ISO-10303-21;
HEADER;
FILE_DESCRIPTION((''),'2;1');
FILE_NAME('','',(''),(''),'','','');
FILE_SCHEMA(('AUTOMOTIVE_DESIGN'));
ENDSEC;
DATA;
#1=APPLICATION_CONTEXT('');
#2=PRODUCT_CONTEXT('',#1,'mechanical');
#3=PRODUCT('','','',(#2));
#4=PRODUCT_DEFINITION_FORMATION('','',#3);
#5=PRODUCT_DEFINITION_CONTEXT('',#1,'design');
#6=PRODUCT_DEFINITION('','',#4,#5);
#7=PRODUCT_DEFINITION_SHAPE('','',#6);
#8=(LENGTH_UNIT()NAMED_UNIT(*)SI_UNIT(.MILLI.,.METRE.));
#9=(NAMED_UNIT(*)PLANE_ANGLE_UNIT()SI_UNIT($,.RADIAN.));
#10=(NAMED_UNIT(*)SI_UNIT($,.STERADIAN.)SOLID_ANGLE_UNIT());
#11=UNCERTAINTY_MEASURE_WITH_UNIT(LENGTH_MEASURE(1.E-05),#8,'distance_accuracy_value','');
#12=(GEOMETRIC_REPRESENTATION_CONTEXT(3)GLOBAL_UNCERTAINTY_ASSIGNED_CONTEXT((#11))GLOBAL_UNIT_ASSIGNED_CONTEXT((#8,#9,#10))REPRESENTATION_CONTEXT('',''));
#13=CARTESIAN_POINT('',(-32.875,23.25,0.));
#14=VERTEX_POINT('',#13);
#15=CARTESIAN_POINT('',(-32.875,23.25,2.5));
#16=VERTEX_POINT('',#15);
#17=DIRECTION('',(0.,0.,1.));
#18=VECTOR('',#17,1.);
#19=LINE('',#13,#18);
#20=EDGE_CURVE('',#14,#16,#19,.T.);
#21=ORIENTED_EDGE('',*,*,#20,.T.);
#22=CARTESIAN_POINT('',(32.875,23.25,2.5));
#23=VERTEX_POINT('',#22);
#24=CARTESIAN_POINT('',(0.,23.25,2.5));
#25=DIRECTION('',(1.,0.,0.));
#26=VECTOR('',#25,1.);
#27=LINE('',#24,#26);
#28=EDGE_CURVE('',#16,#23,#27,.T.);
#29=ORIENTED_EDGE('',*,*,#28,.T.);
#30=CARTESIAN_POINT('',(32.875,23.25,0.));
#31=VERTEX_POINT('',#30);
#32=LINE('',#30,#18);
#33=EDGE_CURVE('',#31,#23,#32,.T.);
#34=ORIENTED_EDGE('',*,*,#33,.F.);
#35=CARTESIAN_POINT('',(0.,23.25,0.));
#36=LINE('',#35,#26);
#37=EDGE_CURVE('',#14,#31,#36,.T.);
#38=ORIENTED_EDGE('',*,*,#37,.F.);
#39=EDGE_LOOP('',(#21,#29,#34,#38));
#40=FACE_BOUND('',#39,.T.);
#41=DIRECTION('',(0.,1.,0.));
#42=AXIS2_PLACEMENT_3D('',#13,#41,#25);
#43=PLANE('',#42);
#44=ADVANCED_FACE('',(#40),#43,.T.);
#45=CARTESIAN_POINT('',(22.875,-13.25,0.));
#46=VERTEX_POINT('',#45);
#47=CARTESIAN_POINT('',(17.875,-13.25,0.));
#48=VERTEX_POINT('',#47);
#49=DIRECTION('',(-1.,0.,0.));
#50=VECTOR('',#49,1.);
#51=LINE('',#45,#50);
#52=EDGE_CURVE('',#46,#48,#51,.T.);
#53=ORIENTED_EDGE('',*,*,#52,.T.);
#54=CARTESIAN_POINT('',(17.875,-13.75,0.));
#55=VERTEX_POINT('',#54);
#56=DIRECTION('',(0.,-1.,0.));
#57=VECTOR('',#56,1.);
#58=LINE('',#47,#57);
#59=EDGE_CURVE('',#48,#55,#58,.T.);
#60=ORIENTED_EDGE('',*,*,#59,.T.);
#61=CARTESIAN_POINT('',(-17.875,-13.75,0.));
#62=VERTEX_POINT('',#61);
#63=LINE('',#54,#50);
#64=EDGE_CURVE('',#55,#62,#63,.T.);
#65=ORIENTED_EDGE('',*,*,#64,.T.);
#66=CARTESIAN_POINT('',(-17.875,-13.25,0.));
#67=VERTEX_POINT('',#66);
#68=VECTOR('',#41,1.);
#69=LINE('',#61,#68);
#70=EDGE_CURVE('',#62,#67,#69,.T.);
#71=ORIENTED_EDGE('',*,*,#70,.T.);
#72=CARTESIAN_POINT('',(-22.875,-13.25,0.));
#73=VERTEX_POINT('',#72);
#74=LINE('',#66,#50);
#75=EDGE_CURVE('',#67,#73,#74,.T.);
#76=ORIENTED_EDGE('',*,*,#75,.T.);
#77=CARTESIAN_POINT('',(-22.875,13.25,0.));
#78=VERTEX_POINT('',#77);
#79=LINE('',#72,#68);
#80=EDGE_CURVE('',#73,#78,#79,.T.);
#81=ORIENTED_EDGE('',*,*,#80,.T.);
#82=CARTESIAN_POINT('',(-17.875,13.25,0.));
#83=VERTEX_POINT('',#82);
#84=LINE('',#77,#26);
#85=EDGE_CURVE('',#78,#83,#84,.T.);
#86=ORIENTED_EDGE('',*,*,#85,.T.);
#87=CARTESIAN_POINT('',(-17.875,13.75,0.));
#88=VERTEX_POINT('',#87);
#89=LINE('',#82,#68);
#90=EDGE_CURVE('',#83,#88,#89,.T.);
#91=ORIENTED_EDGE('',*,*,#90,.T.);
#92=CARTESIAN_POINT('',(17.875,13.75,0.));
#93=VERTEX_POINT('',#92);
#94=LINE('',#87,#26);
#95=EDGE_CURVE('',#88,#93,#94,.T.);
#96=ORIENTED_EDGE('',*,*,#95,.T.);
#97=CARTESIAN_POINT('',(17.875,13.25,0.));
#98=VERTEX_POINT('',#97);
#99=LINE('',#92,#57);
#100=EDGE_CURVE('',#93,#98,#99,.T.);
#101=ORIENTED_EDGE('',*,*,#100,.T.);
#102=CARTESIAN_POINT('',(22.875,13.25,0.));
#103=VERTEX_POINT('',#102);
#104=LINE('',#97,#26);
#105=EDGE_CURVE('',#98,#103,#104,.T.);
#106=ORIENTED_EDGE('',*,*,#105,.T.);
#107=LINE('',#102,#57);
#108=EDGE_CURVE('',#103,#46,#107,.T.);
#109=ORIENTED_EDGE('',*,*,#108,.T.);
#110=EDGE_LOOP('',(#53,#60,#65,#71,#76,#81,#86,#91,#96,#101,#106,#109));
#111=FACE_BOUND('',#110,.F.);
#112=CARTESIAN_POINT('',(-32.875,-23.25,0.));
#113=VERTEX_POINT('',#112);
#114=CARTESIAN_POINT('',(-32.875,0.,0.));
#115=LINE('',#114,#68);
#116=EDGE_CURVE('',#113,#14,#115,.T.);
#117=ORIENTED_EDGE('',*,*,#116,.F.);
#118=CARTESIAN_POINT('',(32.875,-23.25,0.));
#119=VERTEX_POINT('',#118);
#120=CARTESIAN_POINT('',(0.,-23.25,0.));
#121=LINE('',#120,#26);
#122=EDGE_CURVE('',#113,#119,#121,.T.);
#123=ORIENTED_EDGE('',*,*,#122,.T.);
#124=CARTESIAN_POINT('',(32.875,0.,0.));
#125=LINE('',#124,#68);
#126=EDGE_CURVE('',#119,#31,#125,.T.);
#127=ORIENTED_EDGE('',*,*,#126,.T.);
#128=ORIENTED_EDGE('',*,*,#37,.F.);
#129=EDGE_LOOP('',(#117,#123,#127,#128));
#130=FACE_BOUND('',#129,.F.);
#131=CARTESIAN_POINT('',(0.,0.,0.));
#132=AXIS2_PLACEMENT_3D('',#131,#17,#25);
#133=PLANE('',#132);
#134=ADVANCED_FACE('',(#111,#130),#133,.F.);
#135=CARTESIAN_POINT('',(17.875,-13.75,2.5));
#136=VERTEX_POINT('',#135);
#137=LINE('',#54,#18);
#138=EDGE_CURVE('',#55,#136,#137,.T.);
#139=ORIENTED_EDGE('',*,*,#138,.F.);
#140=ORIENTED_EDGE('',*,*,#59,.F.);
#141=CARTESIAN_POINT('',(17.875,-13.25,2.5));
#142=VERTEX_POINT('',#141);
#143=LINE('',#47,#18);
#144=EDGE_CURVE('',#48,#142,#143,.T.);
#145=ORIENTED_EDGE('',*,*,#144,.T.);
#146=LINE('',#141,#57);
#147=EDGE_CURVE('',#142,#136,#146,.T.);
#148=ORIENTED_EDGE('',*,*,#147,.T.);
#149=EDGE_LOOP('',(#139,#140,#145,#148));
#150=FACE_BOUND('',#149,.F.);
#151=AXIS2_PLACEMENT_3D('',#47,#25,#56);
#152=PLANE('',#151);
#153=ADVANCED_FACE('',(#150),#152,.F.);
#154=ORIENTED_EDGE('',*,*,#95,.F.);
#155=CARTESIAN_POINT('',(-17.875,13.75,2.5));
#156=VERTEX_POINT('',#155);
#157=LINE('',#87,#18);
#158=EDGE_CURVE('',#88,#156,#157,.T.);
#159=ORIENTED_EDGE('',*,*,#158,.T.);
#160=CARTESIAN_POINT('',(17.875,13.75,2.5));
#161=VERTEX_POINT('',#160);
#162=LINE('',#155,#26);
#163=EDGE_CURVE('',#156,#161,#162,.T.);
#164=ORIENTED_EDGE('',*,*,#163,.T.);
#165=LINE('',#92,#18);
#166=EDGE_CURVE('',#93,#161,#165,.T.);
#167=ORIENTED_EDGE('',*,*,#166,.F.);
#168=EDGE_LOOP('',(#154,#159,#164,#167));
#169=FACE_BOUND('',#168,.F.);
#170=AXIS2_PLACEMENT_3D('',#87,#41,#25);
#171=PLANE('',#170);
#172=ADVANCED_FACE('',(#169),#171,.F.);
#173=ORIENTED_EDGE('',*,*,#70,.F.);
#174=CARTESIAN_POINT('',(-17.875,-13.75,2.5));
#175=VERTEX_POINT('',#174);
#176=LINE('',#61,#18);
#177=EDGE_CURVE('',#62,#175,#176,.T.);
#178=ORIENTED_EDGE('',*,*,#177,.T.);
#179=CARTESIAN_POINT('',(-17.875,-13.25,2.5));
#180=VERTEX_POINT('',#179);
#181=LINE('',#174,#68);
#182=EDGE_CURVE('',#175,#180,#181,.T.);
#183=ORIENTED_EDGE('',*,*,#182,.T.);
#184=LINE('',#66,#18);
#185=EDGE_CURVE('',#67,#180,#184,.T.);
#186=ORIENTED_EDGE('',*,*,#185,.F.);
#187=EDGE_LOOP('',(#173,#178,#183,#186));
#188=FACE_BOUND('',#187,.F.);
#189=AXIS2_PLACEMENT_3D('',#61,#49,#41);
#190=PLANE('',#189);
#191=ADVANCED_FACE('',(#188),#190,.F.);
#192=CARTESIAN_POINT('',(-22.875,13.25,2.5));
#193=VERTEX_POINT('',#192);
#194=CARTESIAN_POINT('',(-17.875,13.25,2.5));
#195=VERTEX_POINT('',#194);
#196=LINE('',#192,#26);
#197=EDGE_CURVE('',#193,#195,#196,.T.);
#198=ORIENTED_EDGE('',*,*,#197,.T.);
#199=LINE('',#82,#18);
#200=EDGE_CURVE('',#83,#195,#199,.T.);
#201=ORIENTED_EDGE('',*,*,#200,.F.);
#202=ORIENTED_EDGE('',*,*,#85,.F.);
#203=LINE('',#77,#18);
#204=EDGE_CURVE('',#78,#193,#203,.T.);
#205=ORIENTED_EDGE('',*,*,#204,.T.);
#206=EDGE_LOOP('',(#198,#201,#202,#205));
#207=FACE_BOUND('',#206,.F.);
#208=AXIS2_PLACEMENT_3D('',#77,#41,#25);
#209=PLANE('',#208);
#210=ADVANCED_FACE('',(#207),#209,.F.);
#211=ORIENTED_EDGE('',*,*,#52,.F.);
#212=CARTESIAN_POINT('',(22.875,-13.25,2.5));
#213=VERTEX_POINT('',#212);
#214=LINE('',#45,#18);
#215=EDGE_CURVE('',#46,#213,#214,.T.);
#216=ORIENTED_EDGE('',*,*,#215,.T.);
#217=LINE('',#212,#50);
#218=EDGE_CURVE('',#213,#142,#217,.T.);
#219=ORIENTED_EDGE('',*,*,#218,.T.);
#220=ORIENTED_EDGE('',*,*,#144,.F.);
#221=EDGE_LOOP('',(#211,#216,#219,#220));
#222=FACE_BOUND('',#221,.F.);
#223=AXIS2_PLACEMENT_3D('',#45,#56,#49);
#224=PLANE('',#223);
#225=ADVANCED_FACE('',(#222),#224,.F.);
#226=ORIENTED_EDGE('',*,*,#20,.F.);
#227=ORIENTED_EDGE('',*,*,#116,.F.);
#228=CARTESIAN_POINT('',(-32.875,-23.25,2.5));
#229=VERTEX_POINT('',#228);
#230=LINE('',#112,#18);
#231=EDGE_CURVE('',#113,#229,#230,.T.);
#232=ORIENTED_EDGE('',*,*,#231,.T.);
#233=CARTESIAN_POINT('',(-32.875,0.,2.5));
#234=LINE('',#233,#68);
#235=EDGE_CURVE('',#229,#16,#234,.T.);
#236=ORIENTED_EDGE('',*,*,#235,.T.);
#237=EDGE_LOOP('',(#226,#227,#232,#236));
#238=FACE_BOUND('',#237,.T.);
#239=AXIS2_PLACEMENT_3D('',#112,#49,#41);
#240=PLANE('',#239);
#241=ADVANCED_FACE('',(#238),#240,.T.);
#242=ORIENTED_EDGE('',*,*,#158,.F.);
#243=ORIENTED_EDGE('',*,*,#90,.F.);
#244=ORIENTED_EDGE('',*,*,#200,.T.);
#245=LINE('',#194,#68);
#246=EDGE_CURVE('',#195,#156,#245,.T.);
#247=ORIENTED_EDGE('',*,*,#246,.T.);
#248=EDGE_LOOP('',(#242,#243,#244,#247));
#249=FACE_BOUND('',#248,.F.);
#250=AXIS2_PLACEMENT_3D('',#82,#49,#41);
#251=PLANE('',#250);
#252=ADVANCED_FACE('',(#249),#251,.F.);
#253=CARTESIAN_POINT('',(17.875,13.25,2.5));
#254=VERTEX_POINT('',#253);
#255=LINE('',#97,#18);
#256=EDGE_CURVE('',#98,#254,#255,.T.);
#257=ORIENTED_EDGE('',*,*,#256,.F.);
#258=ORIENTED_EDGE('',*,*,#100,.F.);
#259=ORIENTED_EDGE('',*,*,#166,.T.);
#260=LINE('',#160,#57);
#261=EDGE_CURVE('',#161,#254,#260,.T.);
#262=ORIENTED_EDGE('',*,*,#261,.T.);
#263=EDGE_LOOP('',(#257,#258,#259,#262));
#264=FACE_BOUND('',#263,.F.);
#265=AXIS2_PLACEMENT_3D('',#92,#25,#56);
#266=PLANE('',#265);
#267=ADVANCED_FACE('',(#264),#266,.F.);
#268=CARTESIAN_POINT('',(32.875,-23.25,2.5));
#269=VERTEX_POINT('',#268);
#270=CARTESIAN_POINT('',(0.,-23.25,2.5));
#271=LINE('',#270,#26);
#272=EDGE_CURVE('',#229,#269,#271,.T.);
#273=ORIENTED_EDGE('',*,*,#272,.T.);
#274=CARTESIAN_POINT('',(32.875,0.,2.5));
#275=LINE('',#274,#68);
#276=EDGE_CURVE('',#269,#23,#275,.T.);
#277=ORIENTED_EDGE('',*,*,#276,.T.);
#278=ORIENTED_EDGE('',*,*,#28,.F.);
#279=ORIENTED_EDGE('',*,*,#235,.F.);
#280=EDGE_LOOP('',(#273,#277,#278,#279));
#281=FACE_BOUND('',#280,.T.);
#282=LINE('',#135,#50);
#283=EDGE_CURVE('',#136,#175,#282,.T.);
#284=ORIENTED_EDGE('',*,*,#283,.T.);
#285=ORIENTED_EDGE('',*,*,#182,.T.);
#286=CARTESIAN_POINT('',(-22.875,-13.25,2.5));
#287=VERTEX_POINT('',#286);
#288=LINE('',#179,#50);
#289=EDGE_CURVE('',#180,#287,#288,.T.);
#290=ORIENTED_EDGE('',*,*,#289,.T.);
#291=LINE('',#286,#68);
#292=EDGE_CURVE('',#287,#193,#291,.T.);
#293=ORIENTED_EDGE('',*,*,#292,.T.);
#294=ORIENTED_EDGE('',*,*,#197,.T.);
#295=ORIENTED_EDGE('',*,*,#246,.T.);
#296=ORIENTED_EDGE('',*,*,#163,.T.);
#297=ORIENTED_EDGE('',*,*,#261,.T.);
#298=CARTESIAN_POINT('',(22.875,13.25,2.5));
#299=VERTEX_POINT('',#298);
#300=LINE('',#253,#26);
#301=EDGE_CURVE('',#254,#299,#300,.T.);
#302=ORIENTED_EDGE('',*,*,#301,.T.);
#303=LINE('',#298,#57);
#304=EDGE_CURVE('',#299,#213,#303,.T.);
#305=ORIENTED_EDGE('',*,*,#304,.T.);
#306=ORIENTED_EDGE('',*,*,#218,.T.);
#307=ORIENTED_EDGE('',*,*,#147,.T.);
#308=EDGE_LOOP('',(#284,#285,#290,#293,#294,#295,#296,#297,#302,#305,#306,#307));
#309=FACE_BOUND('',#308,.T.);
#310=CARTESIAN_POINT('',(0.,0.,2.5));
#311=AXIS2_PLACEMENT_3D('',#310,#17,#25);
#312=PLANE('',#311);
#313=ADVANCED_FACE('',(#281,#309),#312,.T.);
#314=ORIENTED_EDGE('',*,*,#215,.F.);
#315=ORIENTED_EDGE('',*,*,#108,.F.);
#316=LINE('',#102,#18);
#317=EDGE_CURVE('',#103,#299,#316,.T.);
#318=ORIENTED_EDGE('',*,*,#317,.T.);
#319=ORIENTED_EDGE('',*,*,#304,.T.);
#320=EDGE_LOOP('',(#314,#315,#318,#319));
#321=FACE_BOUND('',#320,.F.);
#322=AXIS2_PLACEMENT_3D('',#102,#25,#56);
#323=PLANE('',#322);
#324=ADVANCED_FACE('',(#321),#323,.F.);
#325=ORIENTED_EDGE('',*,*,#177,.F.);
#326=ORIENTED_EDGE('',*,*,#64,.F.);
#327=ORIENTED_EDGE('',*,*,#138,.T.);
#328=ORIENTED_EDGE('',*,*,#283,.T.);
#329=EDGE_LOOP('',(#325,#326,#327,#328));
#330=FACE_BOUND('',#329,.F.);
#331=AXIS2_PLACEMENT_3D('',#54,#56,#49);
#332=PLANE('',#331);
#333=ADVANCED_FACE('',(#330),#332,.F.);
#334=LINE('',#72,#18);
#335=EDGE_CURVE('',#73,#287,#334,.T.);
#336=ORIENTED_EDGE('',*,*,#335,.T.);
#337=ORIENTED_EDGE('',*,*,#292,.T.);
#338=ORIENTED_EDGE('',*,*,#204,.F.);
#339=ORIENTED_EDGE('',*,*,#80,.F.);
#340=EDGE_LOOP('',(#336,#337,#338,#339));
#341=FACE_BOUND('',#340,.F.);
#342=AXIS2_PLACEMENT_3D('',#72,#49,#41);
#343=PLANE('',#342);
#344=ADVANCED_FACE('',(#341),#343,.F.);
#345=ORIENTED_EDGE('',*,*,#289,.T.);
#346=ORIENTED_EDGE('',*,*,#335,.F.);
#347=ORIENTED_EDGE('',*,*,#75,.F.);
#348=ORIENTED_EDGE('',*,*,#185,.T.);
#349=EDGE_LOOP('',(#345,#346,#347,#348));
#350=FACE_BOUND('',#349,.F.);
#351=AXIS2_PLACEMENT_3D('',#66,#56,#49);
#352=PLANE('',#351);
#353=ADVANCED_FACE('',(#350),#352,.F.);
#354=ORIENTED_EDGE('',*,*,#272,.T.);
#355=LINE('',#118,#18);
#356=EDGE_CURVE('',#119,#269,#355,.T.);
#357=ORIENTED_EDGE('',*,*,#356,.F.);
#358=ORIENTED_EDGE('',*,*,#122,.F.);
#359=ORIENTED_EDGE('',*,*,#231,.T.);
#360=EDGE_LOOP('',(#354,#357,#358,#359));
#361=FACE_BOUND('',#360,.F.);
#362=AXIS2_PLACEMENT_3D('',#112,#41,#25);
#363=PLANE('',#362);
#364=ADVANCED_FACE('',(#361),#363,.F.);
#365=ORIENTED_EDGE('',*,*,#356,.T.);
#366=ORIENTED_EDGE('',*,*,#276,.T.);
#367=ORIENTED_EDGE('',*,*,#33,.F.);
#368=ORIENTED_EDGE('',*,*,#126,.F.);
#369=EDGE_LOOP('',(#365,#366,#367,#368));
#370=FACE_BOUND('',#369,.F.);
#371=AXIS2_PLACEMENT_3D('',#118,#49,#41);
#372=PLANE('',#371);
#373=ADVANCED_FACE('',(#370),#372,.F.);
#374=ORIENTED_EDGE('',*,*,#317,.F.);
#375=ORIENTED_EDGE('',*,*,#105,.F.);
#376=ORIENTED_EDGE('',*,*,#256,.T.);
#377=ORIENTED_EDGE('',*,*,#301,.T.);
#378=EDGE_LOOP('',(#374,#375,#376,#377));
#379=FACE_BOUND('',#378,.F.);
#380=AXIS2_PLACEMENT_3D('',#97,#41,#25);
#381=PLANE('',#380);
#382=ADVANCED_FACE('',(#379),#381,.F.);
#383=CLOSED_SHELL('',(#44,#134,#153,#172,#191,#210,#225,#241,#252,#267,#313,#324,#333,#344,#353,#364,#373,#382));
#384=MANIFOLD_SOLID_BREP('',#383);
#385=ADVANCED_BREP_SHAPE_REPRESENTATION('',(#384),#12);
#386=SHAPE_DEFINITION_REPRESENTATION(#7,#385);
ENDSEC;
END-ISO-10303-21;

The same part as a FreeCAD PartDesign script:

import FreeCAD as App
import Part
import Sketcher
from FreeCAD import Vector

doc = App.newDocument("Part")
body = doc.addObject("PartDesign::Body", "Body")

# Sketch on XY plane
sketch1 = body.newObject("Sketcher::SketchObject", "Sketch")
sketch1.AttachmentSupport = (doc.getObject("XY_Plane"), [""])
sketch1.MapMode = "FlatFace"
sketch1.addGeometry(Part.LineSegment(Vector(-32.9, 23.2, 0), Vector(-32.9, -23.2, 0)), False)
sketch1.addGeometry(Part.LineSegment(Vector(-32.9, -23.2, 0), Vector(32.9, -23.2, 0)), False)
sketch1.addGeometry(Part.LineSegment(Vector(32.9, -23.2, 0), Vector(32.9, 23.2, 0)), False)
sketch1.addGeometry(Part.LineSegment(Vector(32.9, 23.2, 0), Vector(-32.9, 23.2, 0)), False)
sketch1.addGeometry(Part.LineSegment(Vector(-22.9, -13.2, 0), Vector(-22.9, 13.2, 0)), False)
sketch1.addGeometry(Part.LineSegment(Vector(-22.9, 13.2, 0), Vector(-17.9, 13.2, 0)), False)
sketch1.addGeometry(Part.LineSegment(Vector(-17.9, 13.2, 0), Vector(-17.9, 13.8, 0)), False)
sketch1.addGeometry(Part.LineSegment(Vector(-17.9, 13.8, 0), Vector(17.9, 13.8, 0)), False)
sketch1.addGeometry(Part.LineSegment(Vector(17.9, 13.8, 0), Vector(17.9, 13.2, 0)), False)
sketch1.addGeometry(Part.LineSegment(Vector(17.9, 13.2, 0), Vector(22.9, 13.2, 0)), False)
sketch1.addGeometry(Part.LineSegment(Vector(22.9, 13.2, 0), Vector(22.9, -13.2, 0)), False)
sketch1.addGeometry(Part.LineSegment(Vector(22.9, -13.2, 0), Vector(17.9, -13.2, 0)), False)
sketch1.addGeometry(Part.LineSegment(Vector(17.9, -13.2, 0), Vector(17.9, -13.8, 0)), False)
sketch1.addGeometry(Part.LineSegment(Vector(17.9, -13.8, 0), Vector(-17.9, -13.8, 0)), False)
sketch1.addGeometry(Part.LineSegment(Vector(-17.9, -13.8, 0), Vector(-17.9, -13.2, 0)), False)
sketch1.addGeometry(Part.LineSegment(Vector(-17.9, -13.2, 0), Vector(-22.9, -13.2, 0)), False)
sketch1.addConstraint(Sketcher.Constraint("Coincident", 0, 2, 1, 1))
sketch1.addConstraint(Sketcher.Constraint("Coincident", 1, 2, 2, 1))
sketch1.addConstraint(Sketcher.Constraint("Coincident", 2, 2, 3, 1))
sketch1.addConstraint(Sketcher.Constraint("Coincident", 3, 2, 0, 1))
sketch1.addConstraint(Sketcher.Constraint("Coincident", 4, 2, 5, 1))
sketch1.addConstraint(Sketcher.Constraint("Coincident", 5, 2, 6, 1))
sketch1.addConstraint(Sketcher.Constraint("Coincident", 6, 2, 7, 1))
sketch1.addConstraint(Sketcher.Constraint("Coincident", 7, 2, 8, 1))
sketch1.addConstraint(Sketcher.Constraint("Coincident", 8, 2, 9, 1))
sketch1.addConstraint(Sketcher.Constraint("Coincident", 9, 2, 10, 1))
sketch1.addConstraint(Sketcher.Constraint("Coincident", 10, 2, 11, 1))
sketch1.addConstraint(Sketcher.Constraint("Coincident", 11, 2, 12, 1))
sketch1.addConstraint(Sketcher.Constraint("Coincident", 12, 2, 13, 1))
sketch1.addConstraint(Sketcher.Constraint("Coincident", 13, 2, 14, 1))
sketch1.addConstraint(Sketcher.Constraint("Coincident", 14, 2, 15, 1))
sketch1.addConstraint(Sketcher.Constraint("Coincident", 15, 2, 4, 1))
sketch1.addConstraint(Sketcher.Constraint("Vertical", 0))
sketch1.addConstraint(Sketcher.Constraint("Horizontal", 1))
sketch1.addConstraint(Sketcher.Constraint("Vertical", 2))
sketch1.addConstraint(Sketcher.Constraint("Horizontal", 3))
sketch1.addConstraint(Sketcher.Constraint("Vertical", 4))
sketch1.addConstraint(Sketcher.Constraint("Horizontal", 5))
sketch1.addConstraint(Sketcher.Constraint("Vertical", 6))
sketch1.addConstraint(Sketcher.Constraint("Horizontal", 7))
sketch1.addConstraint(Sketcher.Constraint("Vertical", 8))
sketch1.addConstraint(Sketcher.Constraint("Horizontal", 9))
sketch1.addConstraint(Sketcher.Constraint("Vertical", 10))
sketch1.addConstraint(Sketcher.Constraint("Horizontal", 11))
sketch1.addConstraint(Sketcher.Constraint("Vertical", 12))
sketch1.addConstraint(Sketcher.Constraint("Horizontal", 13))
sketch1.addConstraint(Sketcher.Constraint("Vertical", 14))
sketch1.addConstraint(Sketcher.Constraint("Horizontal", 15))
sketch1.addConstraint(Sketcher.Constraint("Symmetric", 0, 2, 2, 2, -1, 1))
sketch1.addConstraint(Sketcher.Constraint("Symmetric", 4, 2, 10, 2, -1, 1))
sketch1.addConstraint(Sketcher.Constraint("Symmetric", 6, 2, 12, 2, -1, 1))
sketch1.addConstraint(Sketcher.Constraint("Symmetric", 8, 2, 14, 2, -1, 1))
sketch1.addConstraint(Sketcher.Constraint("Symmetric", 5, 2, 8, 2, -2))
sketch1.addConstraint(Sketcher.Constraint("DistanceX", 5, 1, 5, 2, 5.0))
sketch1.addConstraint(Sketcher.Constraint("DistanceY", 0, 2, 0, 1, 46.5))
sketch1.addConstraint(Sketcher.Constraint("DistanceY", 4, 1, 4, 2, 26.5))
sketch1.addConstraint(Sketcher.Constraint("DistanceY", 6, 1, 6, 2, 0.5))
sketch1.addConstraint(Sketcher.Constraint("DistanceX", 3, 2, 4, 2, 10.0))
sketch1.addConstraint(Sketcher.Constraint("DistanceX", 1, 1, 1, 2, 65.75))
pad1 = body.newObject("PartDesign::Pad", "Pad")
pad1.Profile = sketch1
pad1.Length = 2.5

doc.recompute()
